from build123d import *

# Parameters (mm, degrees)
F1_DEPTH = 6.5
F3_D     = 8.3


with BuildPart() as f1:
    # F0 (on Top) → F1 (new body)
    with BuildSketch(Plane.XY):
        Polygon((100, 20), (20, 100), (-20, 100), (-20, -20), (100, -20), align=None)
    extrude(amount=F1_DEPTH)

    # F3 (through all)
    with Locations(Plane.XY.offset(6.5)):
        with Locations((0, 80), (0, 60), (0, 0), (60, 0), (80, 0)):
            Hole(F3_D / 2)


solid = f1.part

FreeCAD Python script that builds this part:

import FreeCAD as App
import Part
import Sketcher
Q = App.Units.Quantity

doc = App.newDocument("Part")
body = doc.addObject("PartDesign::Body", "Body")

sketch1 = body.newObject("Sketcher::SketchObject", "Sketch")
sketch1.AttachmentSupport = (doc.getObject("XY_Plane"), [""])
sketch1.MapMode = "FlatFace"
sketch1.addGeometry(Part.LineSegment(App.Vector(100, 20, 0), App.Vector(20, 100, 0)), False)
sketch1.addGeometry(Part.LineSegment(App.Vector(20, 100, 0), App.Vector(-20, 100, 0)), False)
sketch1.addGeometry(Part.LineSegment(App.Vector(-20, 100, 0), App.Vector(-20, -20, 0)), False)
sketch1.addGeometry(Part.LineSegment(App.Vector(-20, -20, 0), App.Vector(100, -20, 0)), False)
sketch1.addGeometry(Part.LineSegment(App.Vector(100, -20, 0), App.Vector(100, 20, 0)), False)
sketch1.addConstraint(Sketcher.Constraint("Coincident", 0, 2, 1, 1))
sketch1.addConstraint(Sketcher.Constraint("Coincident", 1, 2, 2, 1))
sketch1.addConstraint(Sketcher.Constraint("Coincident", 2, 2, 3, 1))
sketch1.addConstraint(Sketcher.Constraint("Coincident", 3, 2, 4, 1))
sketch1.addConstraint(Sketcher.Constraint("Coincident", 4, 2, 0, 1))
sketch1.addConstraint(Sketcher.Constraint("Horizontal", 1))
sketch1.addConstraint(Sketcher.Constraint("Vertical", 2))
sketch1.addConstraint(Sketcher.Constraint("Horizontal", 3))
sketch1.addConstraint(Sketcher.Constraint("Vertical", 4))
sketch1.addConstraint(Sketcher.Constraint("Equal", 3, 2))
sketch1.addConstraint(Sketcher.Constraint("Equal", 1, 4))
sketch1.addConstraint(Sketcher.Constraint("DistanceX", 1, 2, 1, 1, Q("40 mm")))
sketch1.addConstraint(Sketcher.Constraint("DistanceX", 3, 1, 3, 2, Q("120 mm")))
sketch1.addConstraint(Sketcher.Constraint("DistanceX", -1, 1, 0, 2, Q("20 mm")))
sketch1.addConstraint(Sketcher.Constraint("DistanceY", -1, 1, 0, 2, Q("100 mm")))
pad1 = body.newObject("PartDesign::Pad", "Pad")
pad1.Profile = sketch1
pad1.Length = 6.5

sketch2 = body.newObject("Sketcher::SketchObject", "Sketch001")
sketch2.AttachmentSupport = (doc.getObject("XY_Plane"), [""])
sketch2.MapMode = "FlatFace"
sketch2.AttachmentOffset = App.Placement(App.Vector(0, 0, 6.5), App.Rotation())
sketch2.addGeometry(Part.Circle(App.Vector(0, 80, 0), App.Vector(0, 0, 1), 4.2), False)
sketch2.addGeometry(Part.Circle(App.Vector(0, 60, 0), App.Vector(0, 0, 1), 4.2), False)
sketch2.addGeometry(Part.Circle(App.Vector(0, 0, 0), App.Vector(0, 0, 1), 4.2), False)
sketch2.addGeometry(Part.Circle(App.Vector(60, 0, 0), App.Vector(0, 0, 1), 4.2), False)
sketch2.addGeometry(Part.Circle(App.Vector(80, 0, 0), App.Vector(0, 0, 1), 4.2), False)
sketch2.addConstraint(Sketcher.Constraint("Coincident", 2, 3, -1, 1))
sketch2.addConstraint(Sketcher.Constraint("Equal", 0, 1))
sketch2.addConstraint(Sketcher.Constraint("Equal", 1, 2))
sketch2.addConstraint(Sketcher.Constraint("Equal", 2, 3))
sketch2.addConstraint(Sketcher.Constraint("Equal", 3, 4))
sketch2.addConstraint(Sketcher.Constraint("PointOnObject", 0, 3, -2))
sketch2.addConstraint(Sketcher.Constraint("PointOnObject", 1, 3, -2))
sketch2.addConstraint(Sketcher.Constraint("PointOnObject", 3, 3, -1))
sketch2.addConstraint(Sketcher.Constraint("PointOnObject", 4, 3, -1))
sketch2.addConstraint(Sketcher.Constraint("Diameter", 0, Q("8.3 mm")))
sketch2.addConstraint(Sketcher.Constraint("DistanceY", -1, 1, 0, 3, Q("80 mm")))
sketch2.addConstraint(Sketcher.Constraint("DistanceY", -1, 1, 1, 3, Q("60 mm")))
sketch2.addConstraint(Sketcher.Constraint("DistanceX", -1, 1, 3, 3, Q("60 mm")))
sketch2.addConstraint(Sketcher.Constraint("DistanceX", -1, 1, 4, 3, Q("80 mm")))
doc.recompute()
hole = body.newObject("PartDesign::Hole", "Hole")
hole.Profile = sketch2
hole.ThreadType = "None"
hole.Diameter = 8.3
hole.DepthType = "ThroughAll"

doc.recompute()
